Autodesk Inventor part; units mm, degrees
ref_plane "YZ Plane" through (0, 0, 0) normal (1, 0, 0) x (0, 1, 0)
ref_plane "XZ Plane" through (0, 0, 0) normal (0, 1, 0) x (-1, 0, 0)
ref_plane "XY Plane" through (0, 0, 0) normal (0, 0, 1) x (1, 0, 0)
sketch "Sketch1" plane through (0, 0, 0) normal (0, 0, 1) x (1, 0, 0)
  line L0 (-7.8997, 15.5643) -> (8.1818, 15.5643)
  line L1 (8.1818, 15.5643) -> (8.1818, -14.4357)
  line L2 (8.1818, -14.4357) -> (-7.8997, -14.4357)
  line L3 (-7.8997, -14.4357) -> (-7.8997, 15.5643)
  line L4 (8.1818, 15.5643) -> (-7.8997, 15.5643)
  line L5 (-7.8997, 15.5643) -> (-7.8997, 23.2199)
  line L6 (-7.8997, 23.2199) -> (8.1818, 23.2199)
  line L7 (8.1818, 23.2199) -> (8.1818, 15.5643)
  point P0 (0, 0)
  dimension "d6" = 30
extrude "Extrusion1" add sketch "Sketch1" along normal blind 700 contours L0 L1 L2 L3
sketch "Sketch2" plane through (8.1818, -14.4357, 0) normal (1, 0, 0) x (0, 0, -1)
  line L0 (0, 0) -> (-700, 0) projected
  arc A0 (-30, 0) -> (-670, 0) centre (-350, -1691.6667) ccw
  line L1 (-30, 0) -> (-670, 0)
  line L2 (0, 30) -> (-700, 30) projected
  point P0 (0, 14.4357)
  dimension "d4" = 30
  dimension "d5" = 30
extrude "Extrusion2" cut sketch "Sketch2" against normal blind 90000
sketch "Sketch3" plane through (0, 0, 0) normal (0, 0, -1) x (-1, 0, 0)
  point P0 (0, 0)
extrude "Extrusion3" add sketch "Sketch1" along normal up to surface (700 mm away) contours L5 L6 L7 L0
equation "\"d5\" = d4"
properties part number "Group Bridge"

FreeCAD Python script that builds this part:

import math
import FreeCAD as App
import Part
import Sketcher
Q = App.Units.Quantity

doc = App.newDocument("Part")
body = doc.addObject("PartDesign::Body", "Body")
body.AllowCompound = True

# Sketch on XY plane
sketch1 = doc.addObject("Sketcher::SketchObject", "Sketch")
body.addObject(sketch1)
sketch1.AttachmentSupport = (doc.XY_Plane, [""])
sketch1.MapMode = "FlatFace"
sketch1.addGeometry(Part.LineSegment(App.Vector(8, 16, 0), App.Vector(-8, 16, 0)), False)
sketch1.addGeometry(Part.LineSegment(App.Vector(-8, 16, 0), App.Vector(-8, -14, 0)), False)
sketch1.addGeometry(Part.LineSegment(App.Vector(-8, -14, 0), App.Vector(8, -14, 0)), False)
sketch1.addGeometry(Part.LineSegment(App.Vector(8, -14, 0), App.Vector(8, 16, 0)), False)
sketch1.addConstraint(Sketcher.Constraint("Coincident", 0, 2, 1, 1))
sketch1.addConstraint(Sketcher.Constraint("Coincident", 1, 2, 2, 1))
sketch1.addConstraint(Sketcher.Constraint("Coincident", 2, 2, 3, 1))
sketch1.addConstraint(Sketcher.Constraint("Coincident", 3, 2, 0, 1))
sketch1.addConstraint(Sketcher.Constraint("Horizontal", 0))
sketch1.addConstraint(Sketcher.Constraint("Vertical", 1))
sketch1.addConstraint(Sketcher.Constraint("Horizontal", 2))
sketch1.addConstraint(Sketcher.Constraint("Vertical", 3))
sketch1.addConstraint(Sketcher.Constraint("DistanceY", 1, 2, 1, 1, Q("30 mm")))
sketch1.addConstraint(Sketcher.Constraint("DistanceX", 0, 2, 0, 1, Q("16.0815 mm")))
sketch1.addConstraint(Sketcher.Constraint("DistanceX", 0, 2, -1, 1, Q("7.8997 mm")))
sketch1.addConstraint(Sketcher.Constraint("DistanceY", -1, 1, 0, 2, Q("15.5643 mm")))
pad1 = doc.addObject("PartDesign::Pad", "Pad")
body.addObject(pad1)
pad1.Profile = sketch1
pad1.Length = 700

# Sketch on YZ plane
sketch2 = doc.addObject("Sketcher::SketchObject", "Sketch001")
body.addObject(sketch2)
sketch2.AttachmentSupport = (doc.YZ_Plane, [""])
sketch2.MapMode = "FlatFace"
sketch2.AttachmentOffset = App.Placement(App.Vector(0, 0, 8.1818), App.Rotation())
sketch2.addGeometry(Part.LineSegment(App.Vector(-14, 670, 0), App.Vector(-14, 30, 0)), False)
sketch2.addGeometry(Part.ArcOfCircle(Part.Circle(App.Vector(-1706, 350, 0), App.Vector(0, 0, 1), 1722), math.radians(-11), math.radians(11)), False)
sketch2.addConstraint(Sketcher.Constraint("Coincident", 0, 1, 1, 2))
sketch2.addConstraint(Sketcher.Constraint("Coincident", 1, 1, 0, 2))
sketch2.addConstraint(Sketcher.Constraint("Vertical", 0))
sketch2.addConstraint(Sketcher.Constraint("DistanceY", 0, 2, 0, 1, Q("640 mm")))
sketch2.addConstraint(Sketcher.Constraint("DistanceY", -1, 1, 1, 3, Q("350 mm")))
sketch2.addConstraint(Sketcher.Constraint("Radius", 1, Q("1721.6667 mm")))
sketch2.addConstraint(Sketcher.Constraint("DistanceX", 1, 3, -1, 1, Q("1706.1024 mm")))
pocket1 = doc.addObject("PartDesign::Pocket", "Pocket")
body.addObject(pocket1)
pocket1.Profile = sketch2
pocket1.Length = 90000

# Sketch on XY plane
sketch3 = doc.addObject("Sketcher::SketchObject", "Sketch002")
body.addObject(sketch3)
sketch3.AttachmentSupport = (doc.XY_Plane, [""])
sketch3.MapMode = "FlatFace"
sketch3.addGeometry(Part.LineSegment(App.Vector(-8, 23, 0), App.Vector(-8, 16, 0)), False)
sketch3.addGeometry(Part.LineSegment(App.Vector(-8, 16, 0), App.Vector(8, 16, 0)), False)
sketch3.addGeometry(Part.LineSegment(App.Vector(8, 16, 0), App.Vector(8, 23, 0)), False)
sketch3.addGeometry(Part.LineSegment(App.Vector(8, 23, 0), App.Vector(-8, 23, 0)), False)
sketch3.addConstraint(Sketcher.Constraint("Coincident", 0, 2, 1, 1))
sketch3.addConstraint(Sketcher.Constraint("Coincident", 1, 2, 2, 1))
sketch3.addConstraint(Sketcher.Constraint("Coincident", 2, 2, 3, 1))
sketch3.addConstraint(Sketcher.Constraint("Coincident", 3, 2, 0, 1))
sketch3.addConstraint(Sketcher.Constraint("Vertical", 0))
sketch3.addConstraint(Sketcher.Constraint("Horizontal", 1))
sketch3.addConstraint(Sketcher.Constraint("Vertical", 2))
sketch3.addConstraint(Sketcher.Constraint("Horizontal", 3))
sketch3.addConstraint(Sketcher.Constraint("DistanceY", -1, 1, 2, 2, Q("23.22 mm")))
sketch3.addConstraint(Sketcher.Constraint("DistanceX", 1, 1, 1, 2, Q("16.0815 mm")))
sketch3.addConstraint(Sketcher.Constraint("DistanceY", 0, 2, 0, 1, Q("7.6556 mm")))
sketch3.addConstraint(Sketcher.Constraint("DistanceX", 0, 2, -1, 1, Q("7.8997 mm")))
pad2 = doc.addObject("PartDesign::Pad", "Pad001")
body.addObject(pad2)
pad2.Profile = sketch3
pad2.Length = 700

doc.recompute()
